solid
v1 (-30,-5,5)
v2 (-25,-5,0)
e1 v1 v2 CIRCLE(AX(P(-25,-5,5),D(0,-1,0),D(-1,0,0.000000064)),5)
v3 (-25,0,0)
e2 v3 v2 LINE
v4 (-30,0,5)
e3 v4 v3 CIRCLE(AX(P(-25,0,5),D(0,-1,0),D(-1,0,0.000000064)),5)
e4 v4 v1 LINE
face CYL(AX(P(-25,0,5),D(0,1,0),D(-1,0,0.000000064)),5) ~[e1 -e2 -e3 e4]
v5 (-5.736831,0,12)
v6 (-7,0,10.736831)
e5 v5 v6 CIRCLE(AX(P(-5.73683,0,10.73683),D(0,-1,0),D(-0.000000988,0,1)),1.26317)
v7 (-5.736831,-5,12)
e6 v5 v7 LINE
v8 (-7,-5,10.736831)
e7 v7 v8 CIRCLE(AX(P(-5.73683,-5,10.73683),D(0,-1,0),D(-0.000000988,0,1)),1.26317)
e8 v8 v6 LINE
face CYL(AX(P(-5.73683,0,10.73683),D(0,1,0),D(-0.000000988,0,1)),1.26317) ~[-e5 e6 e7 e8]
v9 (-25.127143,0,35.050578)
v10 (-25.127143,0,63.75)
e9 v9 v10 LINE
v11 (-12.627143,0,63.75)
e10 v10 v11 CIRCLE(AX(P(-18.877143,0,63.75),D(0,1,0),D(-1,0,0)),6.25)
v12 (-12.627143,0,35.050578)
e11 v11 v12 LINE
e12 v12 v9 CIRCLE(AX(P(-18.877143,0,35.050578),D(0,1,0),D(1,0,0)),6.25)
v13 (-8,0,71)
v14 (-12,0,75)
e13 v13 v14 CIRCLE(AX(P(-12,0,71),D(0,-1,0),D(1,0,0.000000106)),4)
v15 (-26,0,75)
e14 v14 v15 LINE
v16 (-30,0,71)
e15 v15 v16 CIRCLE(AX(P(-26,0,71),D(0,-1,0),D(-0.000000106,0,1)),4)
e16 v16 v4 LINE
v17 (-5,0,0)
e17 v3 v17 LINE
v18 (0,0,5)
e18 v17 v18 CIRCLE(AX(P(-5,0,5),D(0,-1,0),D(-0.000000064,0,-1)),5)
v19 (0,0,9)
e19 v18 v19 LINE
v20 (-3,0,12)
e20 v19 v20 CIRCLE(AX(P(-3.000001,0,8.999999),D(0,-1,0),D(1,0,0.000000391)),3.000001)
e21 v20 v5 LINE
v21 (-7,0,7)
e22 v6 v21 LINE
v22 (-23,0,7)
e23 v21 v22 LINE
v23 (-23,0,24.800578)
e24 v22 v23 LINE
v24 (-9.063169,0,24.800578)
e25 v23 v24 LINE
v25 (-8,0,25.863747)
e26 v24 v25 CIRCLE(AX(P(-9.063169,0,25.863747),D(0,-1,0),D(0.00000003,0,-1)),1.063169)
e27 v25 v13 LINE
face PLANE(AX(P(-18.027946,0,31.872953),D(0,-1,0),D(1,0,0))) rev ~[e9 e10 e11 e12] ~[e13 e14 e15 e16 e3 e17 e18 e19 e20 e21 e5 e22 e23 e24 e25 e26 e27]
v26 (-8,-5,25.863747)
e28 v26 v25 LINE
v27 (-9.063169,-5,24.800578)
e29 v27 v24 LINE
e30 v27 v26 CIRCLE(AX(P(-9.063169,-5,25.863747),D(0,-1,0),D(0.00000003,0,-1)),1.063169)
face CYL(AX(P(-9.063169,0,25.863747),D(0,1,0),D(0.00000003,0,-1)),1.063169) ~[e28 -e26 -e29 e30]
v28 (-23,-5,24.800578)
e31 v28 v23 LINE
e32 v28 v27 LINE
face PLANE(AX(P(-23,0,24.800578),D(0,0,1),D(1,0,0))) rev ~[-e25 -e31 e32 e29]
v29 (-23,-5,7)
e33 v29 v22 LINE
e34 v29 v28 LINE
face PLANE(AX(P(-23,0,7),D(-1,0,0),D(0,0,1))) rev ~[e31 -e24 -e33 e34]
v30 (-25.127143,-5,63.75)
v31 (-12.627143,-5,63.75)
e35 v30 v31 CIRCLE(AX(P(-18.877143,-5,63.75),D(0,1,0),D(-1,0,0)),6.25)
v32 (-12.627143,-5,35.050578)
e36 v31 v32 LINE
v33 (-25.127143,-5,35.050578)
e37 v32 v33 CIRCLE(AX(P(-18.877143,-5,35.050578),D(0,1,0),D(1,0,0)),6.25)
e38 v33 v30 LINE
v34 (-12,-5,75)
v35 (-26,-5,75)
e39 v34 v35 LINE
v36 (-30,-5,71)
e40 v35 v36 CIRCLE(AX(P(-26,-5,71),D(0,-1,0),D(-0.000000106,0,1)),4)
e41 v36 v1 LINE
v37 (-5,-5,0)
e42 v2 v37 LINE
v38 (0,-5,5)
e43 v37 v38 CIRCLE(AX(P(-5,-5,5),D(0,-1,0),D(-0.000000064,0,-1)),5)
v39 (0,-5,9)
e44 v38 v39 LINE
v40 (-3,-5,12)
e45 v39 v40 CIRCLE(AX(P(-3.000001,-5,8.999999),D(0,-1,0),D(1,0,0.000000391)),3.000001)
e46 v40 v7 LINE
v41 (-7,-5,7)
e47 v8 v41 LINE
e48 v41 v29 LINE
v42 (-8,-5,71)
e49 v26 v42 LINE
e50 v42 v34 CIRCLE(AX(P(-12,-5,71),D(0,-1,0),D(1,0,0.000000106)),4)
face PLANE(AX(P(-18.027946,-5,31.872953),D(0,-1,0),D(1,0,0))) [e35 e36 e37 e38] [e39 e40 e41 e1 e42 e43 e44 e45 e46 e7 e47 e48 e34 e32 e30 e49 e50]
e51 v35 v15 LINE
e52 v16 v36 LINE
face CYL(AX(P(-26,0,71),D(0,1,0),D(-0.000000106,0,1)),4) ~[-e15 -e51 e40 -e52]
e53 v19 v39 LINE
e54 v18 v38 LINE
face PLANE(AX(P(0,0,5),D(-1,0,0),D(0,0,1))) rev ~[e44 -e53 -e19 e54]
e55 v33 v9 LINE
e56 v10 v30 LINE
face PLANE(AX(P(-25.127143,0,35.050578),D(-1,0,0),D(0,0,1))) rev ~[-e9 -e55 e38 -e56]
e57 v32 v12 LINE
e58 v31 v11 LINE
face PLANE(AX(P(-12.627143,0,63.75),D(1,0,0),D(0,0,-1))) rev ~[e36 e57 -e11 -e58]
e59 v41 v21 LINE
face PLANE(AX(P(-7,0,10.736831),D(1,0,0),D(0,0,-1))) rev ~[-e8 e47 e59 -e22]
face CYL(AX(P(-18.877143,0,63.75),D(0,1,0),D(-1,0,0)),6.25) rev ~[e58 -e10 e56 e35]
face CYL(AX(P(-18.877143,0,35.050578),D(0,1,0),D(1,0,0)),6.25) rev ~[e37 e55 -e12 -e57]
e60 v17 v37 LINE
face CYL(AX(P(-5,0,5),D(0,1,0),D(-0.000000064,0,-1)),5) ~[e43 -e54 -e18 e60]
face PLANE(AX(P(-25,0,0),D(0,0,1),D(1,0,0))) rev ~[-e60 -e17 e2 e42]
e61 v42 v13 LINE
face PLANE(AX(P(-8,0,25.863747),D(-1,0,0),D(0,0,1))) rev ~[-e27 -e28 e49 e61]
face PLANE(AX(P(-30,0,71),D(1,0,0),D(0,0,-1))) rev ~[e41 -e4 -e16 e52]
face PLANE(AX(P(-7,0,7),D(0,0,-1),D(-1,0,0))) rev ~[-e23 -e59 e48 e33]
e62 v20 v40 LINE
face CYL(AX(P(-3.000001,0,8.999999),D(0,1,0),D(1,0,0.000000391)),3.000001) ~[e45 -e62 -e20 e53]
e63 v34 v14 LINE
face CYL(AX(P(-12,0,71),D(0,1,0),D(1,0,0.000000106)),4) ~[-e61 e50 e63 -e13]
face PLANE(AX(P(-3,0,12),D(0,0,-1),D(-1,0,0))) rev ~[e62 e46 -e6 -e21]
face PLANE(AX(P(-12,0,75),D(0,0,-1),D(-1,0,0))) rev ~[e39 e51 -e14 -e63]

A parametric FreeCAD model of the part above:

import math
import FreeCAD as App
import Part
import Sketcher
from FreeCAD import Vector
Q = App.Units.Quantity

doc = App.newDocument("Part")
params = doc.addObject("Spreadsheet::Sheet", "Params")
for row, (alias, value) in enumerate([
    ("sketch1_radius", "4 mm"),
    ("sketch1_radius2", "5 mm"),
    ("sketch1_radius3", "3.000001 mm"),
    ("sketch1_width", "20 mm"),
    ("sketch1_width2", "16 mm"),
    ("pad1_length", "4 mm"),
    ("sketch2_radius", "4 mm"),
    ("sketch2_radius2", "5 mm"),
    ("sketch2_radius3", "3.000001 mm"),
    ("sketch2_width", "20 mm"),
    ("sketch2_width2", "16 mm"),
    ("pad2_length", "5 mm"),
], start=1):
    params.set(f"A{row}", alias)
    params.set(f"B{row}", "=" + value)
    params.setAlias(f"B{row}", alias)

body = doc.addObject("PartDesign::Body", "Body")

sketch1 = body.newObject("Sketcher::SketchObject", "Sketch")
sketch1.AttachmentSupport = (doc.getObject("XZ_Plane"), [""])
sketch1.MapMode = "FlatFace"
sketch1.addGeometry([
    Part.ArcOfCircle(Part.Circle(Vector(-26, 71, 0), Vector(0, 0, 1), 4), math.radians(90.000006), math.radians(179.999994)),
    Part.LineSegment(Vector(-30, 71, 0), Vector(-30, 5, 0)),
    Part.ArcOfCircle(Part.Circle(Vector(-25, 5, 0), Vector(0, 0, 1), 5), math.radians(179.999996), math.radians(270.000004)),
    Part.LineSegment(Vector(-25, 0, 0), Vector(-5, 0, 0)),
    Part.ArcOfCircle(Part.Circle(Vector(-5, 5, 0), Vector(0, 0, 1), 5), math.radians(-90.000004), math.radians(0.000004)),
    Part.LineSegment(Vector(0, 5, 0), Vector(0, 9, 0)),
    Part.ArcOfCircle(Part.Circle(Vector(-3.000001, 8.999999, 0), Vector(0, 0, 1), 3.000001), math.radians(0.000022), math.radians(89.999978)),
    Part.LineSegment(Vector(-3, 12, 0), Vector(-5.736831, 12, 0)),
    Part.ArcOfCircle(Part.Circle(Vector(-5.73683, 10.73683, 0), Vector(0, 0, 1), 1.26317), math.radians(90.000057), math.radians(179.999943)),
    Part.LineSegment(Vector(-7, 10.736831, 0), Vector(-7, 7, 0)),
    Part.LineSegment(Vector(-7, 7, 0), Vector(-23, 7, 0)),
    Part.LineSegment(Vector(-23, 7, 0), Vector(-23, 24.800578, 0)),
    Part.LineSegment(Vector(-23, 24.800578, 0), Vector(-9.063169, 24.800578, 0)),
    Part.ArcOfCircle(Part.Circle(Vector(-9.063169, 25.863747, 0), Vector(0, 0, 1), 1.063169), math.radians(-89.999998), math.radians(-0.000002)),
    Part.LineSegment(Vector(-8, 25.863747, 0), Vector(-8, 71, 0)),
    Part.ArcOfCircle(Part.Circle(Vector(-12, 71, 0), Vector(0, 0, 1), 4), math.radians(0.000006), math.radians(89.999994)),
    Part.LineSegment(Vector(-12, 75, 0), Vector(-26, 75, 0)),
    Part.LineSegment(Vector(-25.127143, 35.050578, 0), Vector(-25.127143, 63.75, 0)),
    Part.ArcOfCircle(Part.Circle(Vector(-18.877143, 63.75, 0), Vector(0, 0, 1), 6.25), math.radians(0), math.radians(180)),
    Part.LineSegment(Vector(-12.627143, 63.75, 0), Vector(-12.627143, 35.050578, 0)),
    Part.ArcOfCircle(Part.Circle(Vector(-18.877143, 35.050578, 0), Vector(0, 0, 1), 6.25), math.radians(180), math.radians(360)),
], False)
sketch1.addConstraint([
    Sketcher.Constraint("Tangent", 0, 2, 1, 1),
    Sketcher.Constraint("Tangent", 1, 2, 2, 1),
    Sketcher.Constraint("Tangent", 2, 2, 3, 1),
    Sketcher.Constraint("Tangent", 3, 2, 4, 1),
    Sketcher.Constraint("Tangent", 4, 2, 5, 1),
    Sketcher.Constraint("Tangent", 5, 2, 6, 1),
    Sketcher.Constraint("Tangent", 6, 2, 7, 1),
    Sketcher.Constraint("Tangent", 7, 2, 8, 1),
    Sketcher.Constraint("Tangent", 8, 2, 9, 1),
    Sketcher.Constraint("Coincident", 9, 2, 10, 1),
    Sketcher.Constraint("Coincident", 10, 2, 11, 1),
    Sketcher.Constraint("Coincident", 11, 2, 12, 1),
    Sketcher.Constraint("Tangent", 12, 2, 13, 1),
    Sketcher.Constraint("Tangent", 13, 2, 14, 1),
    Sketcher.Constraint("Tangent", 14, 2, 15, 1),
    Sketcher.Constraint("Tangent", 15, 2, 16, 1),
    Sketcher.Constraint("Tangent", 16, 2, 0, 1),
    Sketcher.Constraint("Tangent", 17, 2, 18, 2),
    Sketcher.Constraint("Tangent", 18, 1, 19, 1),
    Sketcher.Constraint("Tangent", 19, 2, 20, 2),
    Sketcher.Constraint("Tangent", 20, 1, 17, 1),
    Sketcher.Constraint("Vertical", 1),
    Sketcher.Constraint("Horizontal", 3),
    Sketcher.Constraint("Vertical", 5),
    Sketcher.Constraint("Horizontal", 7),
    Sketcher.Constraint("Vertical", 9),
    Sketcher.Constraint("Horizontal", 10),
    Sketcher.Constraint("Vertical", 11),
    Sketcher.Constraint("Horizontal", 12),
    Sketcher.Constraint("Vertical", 14),
    Sketcher.Constraint("Horizontal", 16),
    Sketcher.Constraint("Vertical", 17),
    Sketcher.Constraint("Vertical", 19),
    Sketcher.Constraint("Equal", 2, 4),
    Sketcher.Constraint("Equal", 0, 15),
    Sketcher.Constraint("PointOnObject", 2, 2, -1),
    Sketcher.Constraint("PointOnObject", 4, 2, -2),
    Sketcher.Constraint("Radius", 0, Q("4 mm")),
    Sketcher.Constraint("Radius", 2, Q("5 mm")),
    Sketcher.Constraint("Radius", 6, Q("3.000001 mm")),
    Sketcher.Constraint("DistanceX", 3, 1, 3, 2, Q("20 mm")),
    Sketcher.Constraint("DistanceX", 10, 2, 10, 1, Q("16 mm")),
    Sketcher.Constraint("DistanceX", 16, 2, 16, 1, Q("14 mm")),
    Sketcher.Constraint("DistanceY", 1, 2, 1, 1, Q("66 mm")),
    Sketcher.Constraint("DistanceY", 5, 1, 5, 2, Q("4 mm")),
    Sketcher.Constraint("Radius", 18, Q("6.25 mm")),
    Sketcher.Constraint("DistanceX", 8, 2, -1, 1, Q("7 mm")),
    Sketcher.Constraint("DistanceY", -1, 1, 9, 2, Q("7 mm")),
    Sketcher.Constraint("DistanceY", -1, 1, 18, 3, Q("63.75 mm")),
    Sketcher.Constraint("Radius", 8, Q("1.26317 mm")),
    Sketcher.Constraint("Radius", 13, Q("1.063169 mm")),
    Sketcher.Constraint("DistanceY", 11, 2, 20, 3, Q("10.25 mm")),
    Sketcher.Constraint("DistanceY", 11, 1, 11, 2, Q("17.800578 mm")),
    Sketcher.Constraint("DistanceX", 18, 3, 6, 3, Q("15.877142 mm")),
])
sketch1.setExpression("Constraints[37]", "Params.sketch1_radius")
sketch1.setExpression("Constraints[38]", "Params.sketch1_radius2")
sketch1.setExpression("Constraints[39]", "Params.sketch1_radius3")
sketch1.setExpression("Constraints[40]", "Params.sketch1_width")
sketch1.setExpression("Constraints[41]", "Params.sketch1_width2")
pad1 = body.newObject("PartDesign::Pad", "Pad")
pad1.Profile = sketch1
pad1.setExpression("Length", "Params.pad1_length")

sketch2 = body.newObject("Sketcher::SketchObject", "Sketch001")
sketch2.AttachmentSupport = (doc.getObject("XZ_Plane"), [""])
sketch2.MapMode = "FlatFace"
sketch2.addGeometry([
    Part.ArcOfCircle(Part.Circle(Vector(-26, 71, 0), Vector(0, 0, 1), 4), math.radians(90.000006), math.radians(179.999994)),
    Part.LineSegment(Vector(-30, 71, 0), Vector(-30, 5, 0)),
    Part.ArcOfCircle(Part.Circle(Vector(-25, 5, 0), Vector(0, 0, 1), 5), math.radians(179.999996), math.radians(270.000004)),
    Part.LineSegment(Vector(-25, 0, 0), Vector(-5, 0, 0)),
    Part.ArcOfCircle(Part.Circle(Vector(-5, 5, 0), Vector(0, 0, 1), 5), math.radians(-90.000004), math.radians(0.000004)),
    Part.LineSegment(Vector(0, 5, 0), Vector(0, 9, 0)),
    Part.ArcOfCircle(Part.Circle(Vector(-3.000001, 8.999999, 0), Vector(0, 0, 1), 3.000001), math.radians(0.000022), math.radians(89.999978)),
    Part.LineSegment(Vector(-3, 12, 0), Vector(-5.736831, 12, 0)),
    Part.ArcOfCircle(Part.Circle(Vector(-5.73683, 10.73683, 0), Vector(0, 0, 1), 1.26317), math.radians(90.000057), math.radians(179.999943)),
    Part.LineSegment(Vector(-7, 10.736831, 0), Vector(-7, 7, 0)),
    Part.LineSegment(Vector(-7, 7, 0), Vector(-23, 7, 0)),
    Part.LineSegment(Vector(-23, 7, 0), Vector(-23, 24.800578, 0)),
    Part.LineSegment(Vector(-23, 24.800578, 0), Vector(-9.063169, 24.800578, 0)),
    Part.ArcOfCircle(Part.Circle(Vector(-9.063169, 25.863747, 0), Vector(0, 0, 1), 1.063169), math.radians(-89.999998), math.radians(-0.000002)),
    Part.LineSegment(Vector(-8, 25.863747, 0), Vector(-8, 71, 0)),
    Part.ArcOfCircle(Part.Circle(Vector(-12, 71, 0), Vector(0, 0, 1), 4), math.radians(0.000006), math.radians(89.999994)),
    Part.LineSegment(Vector(-12, 75, 0), Vector(-26, 75, 0)),
    Part.LineSegment(Vector(-25.127143, 35.050578, 0), Vector(-25.127143, 63.75, 0)),
    Part.ArcOfCircle(Part.Circle(Vector(-18.877143, 63.75, 0), Vector(0, 0, 1), 6.25), math.radians(0), math.radians(180)),
    Part.LineSegment(Vector(-12.627143, 63.75, 0), Vector(-12.627143, 35.050578, 0)),
    Part.ArcOfCircle(Part.Circle(Vector(-18.877143, 35.050578, 0), Vector(0, 0, 1), 6.25), math.radians(180), math.radians(360)),
], False)
sketch2.addConstraint([
    Sketcher.Constraint("Tangent", 0, 2, 1, 1),
    Sketcher.Constraint("Tangent", 1, 2, 2, 1),
    Sketcher.Constraint("Tangent", 2, 2, 3, 1),
    Sketcher.Constraint("Tangent", 3, 2, 4, 1),
    Sketcher.Constraint("Tangent", 4, 2, 5, 1),
    Sketcher.Constraint("Tangent", 5, 2, 6, 1),
    Sketcher.Constraint("Tangent", 6, 2, 7, 1),
    Sketcher.Constraint("Tangent", 7, 2, 8, 1),
    Sketcher.Constraint("Tangent", 8, 2, 9, 1),
    Sketcher.Constraint("Coincident", 9, 2, 10, 1),
    Sketcher.Constraint("Coincident", 10, 2, 11, 1),
    Sketcher.Constraint("Coincident", 11, 2, 12, 1),
    Sketcher.Constraint("Tangent", 12, 2, 13, 1),
    Sketcher.Constraint("Tangent", 13, 2, 14, 1),
    Sketcher.Constraint("Tangent", 14, 2, 15, 1),
    Sketcher.Constraint("Tangent", 15, 2, 16, 1),
    Sketcher.Constraint("Tangent", 16, 2, 0, 1),
    Sketcher.Constraint("Tangent", 17, 2, 18, 2),
    Sketcher.Constraint("Tangent", 18, 1, 19, 1),
    Sketcher.Constraint("Tangent", 19, 2, 20, 2),
    Sketcher.Constraint("Tangent", 20, 1, 17, 1),
    Sketcher.Constraint("Vertical", 1),
    Sketcher.Constraint("Horizontal", 3),
    Sketcher.Constraint("Vertical", 5),
    Sketcher.Constraint("Horizontal", 7),
    Sketcher.Constraint("Vertical", 9),
    Sketcher.Constraint("Horizontal", 10),
    Sketcher.Constraint("Vertical", 11),
    Sketcher.Constraint("Horizontal", 12),
    Sketcher.Constraint("Vertical", 14),
    Sketcher.Constraint("Horizontal", 16),
    Sketcher.Constraint("Vertical", 17),
    Sketcher.Constraint("Vertical", 19),
    Sketcher.Constraint("Equal", 2, 4),
    Sketcher.Constraint("Equal", 0, 15),
    Sketcher.Constraint("PointOnObject", 2, 2, -1),
    Sketcher.Constraint("PointOnObject", 4, 2, -2),
    Sketcher.Constraint("Radius", 0, Q("4 mm")),
    Sketcher.Constraint("Radius", 2, Q("5 mm")),
    Sketcher.Constraint("Radius", 6, Q("3.000001 mm")),
    Sketcher.Constraint("DistanceX", 3, 1, 3, 2, Q("20 mm")),
    Sketcher.Constraint("DistanceX", 10, 2, 10, 1, Q("16 mm")),
    Sketcher.Constraint("DistanceX", 16, 2, 16, 1, Q("14 mm")),
    Sketcher.Constraint("DistanceY", 1, 2, 1, 1, Q("66 mm")),
    Sketcher.Constraint("DistanceY", 5, 1, 5, 2, Q("4 mm")),
    Sketcher.Constraint("Radius", 18, Q("6.25 mm")),
    Sketcher.Constraint("DistanceX", 8, 2, -1, 1, Q("7 mm")),
    Sketcher.Constraint("DistanceY", -1, 1, 9, 2, Q("7 mm")),
    Sketcher.Constraint("DistanceY", -1, 1, 18, 3, Q("63.75 mm")),
    Sketcher.Constraint("Radius", 8, Q("1.26317 mm")),
    Sketcher.Constraint("Radius", 13, Q("1.063169 mm")),
    Sketcher.Constraint("DistanceY", 11, 2, 20, 3, Q("10.25 mm")),
    Sketcher.Constraint("DistanceY", 11, 1, 11, 2, Q("17.800578 mm")),
    Sketcher.Constraint("DistanceX", 18, 3, 6, 3, Q("15.877142 mm")),
])
sketch2.setExpression("Constraints[37]", "Params.sketch2_radius")
sketch2.setExpression("Constraints[38]", "Params.sketch2_radius2")
sketch2.setExpression("Constraints[39]", "Params.sketch2_radius3")
sketch2.setExpression("Constraints[40]", "Params.sketch2_width")
sketch2.setExpression("Constraints[41]", "Params.sketch2_width2")
pad2 = body.newObject("PartDesign::Pad", "Pad001")
pad2.Profile = sketch2
pad2.setExpression("Length", "Params.pad2_length")

doc.recompute()
